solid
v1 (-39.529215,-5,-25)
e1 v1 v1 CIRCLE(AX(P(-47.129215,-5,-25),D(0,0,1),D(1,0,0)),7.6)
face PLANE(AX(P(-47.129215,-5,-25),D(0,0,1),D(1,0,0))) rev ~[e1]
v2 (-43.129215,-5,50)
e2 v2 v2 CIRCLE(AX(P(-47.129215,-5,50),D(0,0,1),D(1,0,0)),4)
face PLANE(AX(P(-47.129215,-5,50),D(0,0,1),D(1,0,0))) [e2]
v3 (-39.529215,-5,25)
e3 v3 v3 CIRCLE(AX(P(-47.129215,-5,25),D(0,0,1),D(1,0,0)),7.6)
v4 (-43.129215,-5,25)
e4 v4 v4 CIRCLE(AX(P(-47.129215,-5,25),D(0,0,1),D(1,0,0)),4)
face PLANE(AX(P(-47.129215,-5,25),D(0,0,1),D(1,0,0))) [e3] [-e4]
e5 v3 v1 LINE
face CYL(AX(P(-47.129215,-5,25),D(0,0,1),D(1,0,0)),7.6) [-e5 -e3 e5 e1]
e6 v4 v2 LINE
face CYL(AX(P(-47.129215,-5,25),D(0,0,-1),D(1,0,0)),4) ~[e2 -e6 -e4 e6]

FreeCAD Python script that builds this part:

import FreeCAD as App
import Part
import Sketcher

V = App.Vector

doc = App.newDocument("Part")
body = doc.addObject("PartDesign::Body", "Body")

sketch1 = body.newObject("Sketcher::SketchObject", "Sketch")
sketch1.AttachmentSupport = (doc.getObject("XY_Plane"), [""])
sketch1.MapMode = "FlatFace"
sketch1.addGeometry(Part.Circle(V(-47, 0, 0), V(0, 0, 1), 8), False)
sketch1.addConstraint(Sketcher.Constraint("PointOnObject", 0, 3, -1))
sketch1.addConstraint(Sketcher.Constraint("Diameter", 0, 15.2))
sketch1.addConstraint(Sketcher.Constraint("DistanceX", 0, 3, -1, 1, 47.129215))
pad1 = body.newObject("PartDesign::Pad", "Pad")
pad1.Profile = sketch1
pad1.Length = 50
pad1.Reversed = True

sketch2 = body.newObject("Sketcher::SketchObject", "Sketch001")
sketch2.AttachmentSupport = (doc.getObject("XY_Plane"), [""])
sketch2.MapMode = "FlatFace"
sketch2.addGeometry(Part.Circle(V(-47.1, 0, 0), V(0, 0, 1), 4), False)
sketch2.addConstraint(Sketcher.Constraint("PointOnObject", 0, 3, -1))
sketch2.addConstraint(Sketcher.Constraint("Diameter", 0, 8.0))
sketch2.addConstraint(Sketcher.Constraint("DistanceX", 0, 3, -1, 1, 47.129215))
pad2 = body.newObject("PartDesign::Pad", "Pad001")
pad2.Profile = sketch2
pad2.Length = 25
body2 = doc.addObject("PartDesign::Body", "Body001")
doc.recompute()

body.Placement = App.Placement(V(0, -5, 25), App.Rotation(V(0, 0, 1), 0))
boolean = body2.newObject("PartDesign::Boolean", "Boolean")
boolean.Type = "Fuse"
boolean.addObjects([body])

doc.recompute()
